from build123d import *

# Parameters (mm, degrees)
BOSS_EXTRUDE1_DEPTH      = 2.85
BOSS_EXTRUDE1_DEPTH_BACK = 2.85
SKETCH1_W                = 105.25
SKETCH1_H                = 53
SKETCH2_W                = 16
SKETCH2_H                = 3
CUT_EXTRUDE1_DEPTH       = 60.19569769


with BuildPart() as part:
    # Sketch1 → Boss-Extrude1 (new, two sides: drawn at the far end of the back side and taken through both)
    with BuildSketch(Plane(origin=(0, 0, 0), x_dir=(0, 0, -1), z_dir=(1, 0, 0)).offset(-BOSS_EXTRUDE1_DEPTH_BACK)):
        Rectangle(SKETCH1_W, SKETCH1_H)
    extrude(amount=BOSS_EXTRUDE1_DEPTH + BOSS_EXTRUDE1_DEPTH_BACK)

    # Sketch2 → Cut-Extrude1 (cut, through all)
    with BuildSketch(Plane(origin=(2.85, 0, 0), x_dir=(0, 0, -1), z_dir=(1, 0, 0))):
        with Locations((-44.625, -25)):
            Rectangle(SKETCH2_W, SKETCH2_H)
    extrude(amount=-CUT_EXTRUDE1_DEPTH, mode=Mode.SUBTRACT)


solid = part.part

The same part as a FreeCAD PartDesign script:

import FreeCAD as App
import Part
import Sketcher

V = App.Vector
Q = App.Units.Quantity

doc = App.newDocument("Part")
params = doc.addObject("Spreadsheet::Sheet", "Params")
for row, (alias, value) in enumerate([
    ("sketch1_width", "53 mm"),
    ("sketch1_height", "105.25 mm"),
    ("pad1_length", "2.85 mm"),
    ("pad1_length2", "2.85 mm"),
    ("sketch2_width", "3 mm"),
    ("sketch2_height", "16 mm"),
], start=1):
    params.set(f"A{row}", alias)
    params.set(f"B{row}", "=" + value)
    params.setAlias(f"B{row}", alias)

body = doc.addObject("PartDesign::Body", "Body")

# Sketch on YZ plane
sketch1 = doc.addObject("Sketcher::SketchObject", "Sketch")
body.addObject(sketch1)
sketch1.AttachmentSupport = (doc.YZ_Plane, [""])
sketch1.MapMode = "FlatFace"
sketch1.addGeometry(Part.LineSegment(V(26, 53, 0), V(-26, 53, 0)), False)
sketch1.addGeometry(Part.LineSegment(V(-26, 53, 0), V(-26, -53, 0)), False)
sketch1.addGeometry(Part.LineSegment(V(-26, -53, 0), V(26, -53, 0)), False)
sketch1.addGeometry(Part.LineSegment(V(26, -53, 0), V(26, 53, 0)), False)
sketch1.addConstraint(Sketcher.Constraint("Coincident", 0, 2, 1, 1))
sketch1.addConstraint(Sketcher.Constraint("Coincident", 1, 2, 2, 1))
sketch1.addConstraint(Sketcher.Constraint("Coincident", 2, 2, 3, 1))
sketch1.addConstraint(Sketcher.Constraint("Coincident", 3, 2, 0, 1))
sketch1.addConstraint(Sketcher.Constraint("Horizontal", 0))
sketch1.addConstraint(Sketcher.Constraint("Vertical", 1))
sketch1.addConstraint(Sketcher.Constraint("Horizontal", 2))
sketch1.addConstraint(Sketcher.Constraint("Vertical", 3))
sketch1.addConstraint(Sketcher.Constraint("Symmetric", 0, 2, 2, 2, -1, 1))
sketch1.addConstraint(Sketcher.Constraint("DistanceX", 0, 2, 0, 1, Q("53 mm")))
sketch1.addConstraint(Sketcher.Constraint("DistanceY", 1, 2, 1, 1, Q("105.25 mm")))
sketch1.setExpression("Constraints[9]", "Params.sketch1_width")
sketch1.setExpression("Constraints[10]", "Params.sketch1_height")
pad1 = doc.addObject("PartDesign::Pad", "Pad")
body.addObject(pad1)
pad1.Profile = sketch1
pad1.Type = "TwoLengths"
pad1.setExpression("Length", "Params.pad1_length")
pad1.setExpression("Length2", "Params.pad1_length2")

# Sketch on YZ plane
sketch2 = doc.addObject("Sketcher::SketchObject", "Sketch001")
body.addObject(sketch2)
sketch2.AttachmentSupport = (doc.YZ_Plane, [""])
sketch2.MapMode = "FlatFace"
sketch2.AttachmentOffset = App.Placement(V(0, 0, 2.85), App.Rotation())
sketch2.addGeometry(Part.LineSegment(V(-23.5, 52.6, 0), V(-26.5, 52.6, 0)), False)
sketch2.addGeometry(Part.LineSegment(V(-26.5, 52.6, 0), V(-26.5, 36.6, 0)), False)
sketch2.addGeometry(Part.LineSegment(V(-26.5, 36.6, 0), V(-23.5, 36.6, 0)), False)
sketch2.addGeometry(Part.LineSegment(V(-23.5, 36.6, 0), V(-23.5, 52.6, 0)), False)
sketch2.addConstraint(Sketcher.Constraint("Coincident", 0, 2, 1, 1))
sketch2.addConstraint(Sketcher.Constraint("Coincident", 1, 2, 2, 1))
sketch2.addConstraint(Sketcher.Constraint("Coincident", 2, 2, 3, 1))
sketch2.addConstraint(Sketcher.Constraint("Coincident", 3, 2, 0, 1))
sketch2.addConstraint(Sketcher.Constraint("Horizontal", 0))
sketch2.addConstraint(Sketcher.Constraint("Vertical", 1))
sketch2.addConstraint(Sketcher.Constraint("Horizontal", 2))
sketch2.addConstraint(Sketcher.Constraint("Vertical", 3))
sketch2.addConstraint(Sketcher.Constraint("DistanceX", 0, 2, 0, 1, Q("3 mm")))
sketch2.addConstraint(Sketcher.Constraint("DistanceY", 1, 2, 1, 1, Q("16 mm")))
sketch2.addConstraint(Sketcher.Constraint("DistanceX", 0, 2, -1, 1, Q("26.5 mm")))
sketch2.addConstraint(Sketcher.Constraint("DistanceY", -1, 1, 0, 2, Q("52.625 mm")))
sketch2.setExpression("Constraints[8]", "Params.sketch2_width")
sketch2.setExpression("Constraints[9]", "Params.sketch2_height")
pocket1 = doc.addObject("PartDesign::Pocket", "Pocket")
body.addObject(pocket1)
pocket1.Profile = sketch2
pocket1.Type = "ThroughAll"

doc.recompute()
